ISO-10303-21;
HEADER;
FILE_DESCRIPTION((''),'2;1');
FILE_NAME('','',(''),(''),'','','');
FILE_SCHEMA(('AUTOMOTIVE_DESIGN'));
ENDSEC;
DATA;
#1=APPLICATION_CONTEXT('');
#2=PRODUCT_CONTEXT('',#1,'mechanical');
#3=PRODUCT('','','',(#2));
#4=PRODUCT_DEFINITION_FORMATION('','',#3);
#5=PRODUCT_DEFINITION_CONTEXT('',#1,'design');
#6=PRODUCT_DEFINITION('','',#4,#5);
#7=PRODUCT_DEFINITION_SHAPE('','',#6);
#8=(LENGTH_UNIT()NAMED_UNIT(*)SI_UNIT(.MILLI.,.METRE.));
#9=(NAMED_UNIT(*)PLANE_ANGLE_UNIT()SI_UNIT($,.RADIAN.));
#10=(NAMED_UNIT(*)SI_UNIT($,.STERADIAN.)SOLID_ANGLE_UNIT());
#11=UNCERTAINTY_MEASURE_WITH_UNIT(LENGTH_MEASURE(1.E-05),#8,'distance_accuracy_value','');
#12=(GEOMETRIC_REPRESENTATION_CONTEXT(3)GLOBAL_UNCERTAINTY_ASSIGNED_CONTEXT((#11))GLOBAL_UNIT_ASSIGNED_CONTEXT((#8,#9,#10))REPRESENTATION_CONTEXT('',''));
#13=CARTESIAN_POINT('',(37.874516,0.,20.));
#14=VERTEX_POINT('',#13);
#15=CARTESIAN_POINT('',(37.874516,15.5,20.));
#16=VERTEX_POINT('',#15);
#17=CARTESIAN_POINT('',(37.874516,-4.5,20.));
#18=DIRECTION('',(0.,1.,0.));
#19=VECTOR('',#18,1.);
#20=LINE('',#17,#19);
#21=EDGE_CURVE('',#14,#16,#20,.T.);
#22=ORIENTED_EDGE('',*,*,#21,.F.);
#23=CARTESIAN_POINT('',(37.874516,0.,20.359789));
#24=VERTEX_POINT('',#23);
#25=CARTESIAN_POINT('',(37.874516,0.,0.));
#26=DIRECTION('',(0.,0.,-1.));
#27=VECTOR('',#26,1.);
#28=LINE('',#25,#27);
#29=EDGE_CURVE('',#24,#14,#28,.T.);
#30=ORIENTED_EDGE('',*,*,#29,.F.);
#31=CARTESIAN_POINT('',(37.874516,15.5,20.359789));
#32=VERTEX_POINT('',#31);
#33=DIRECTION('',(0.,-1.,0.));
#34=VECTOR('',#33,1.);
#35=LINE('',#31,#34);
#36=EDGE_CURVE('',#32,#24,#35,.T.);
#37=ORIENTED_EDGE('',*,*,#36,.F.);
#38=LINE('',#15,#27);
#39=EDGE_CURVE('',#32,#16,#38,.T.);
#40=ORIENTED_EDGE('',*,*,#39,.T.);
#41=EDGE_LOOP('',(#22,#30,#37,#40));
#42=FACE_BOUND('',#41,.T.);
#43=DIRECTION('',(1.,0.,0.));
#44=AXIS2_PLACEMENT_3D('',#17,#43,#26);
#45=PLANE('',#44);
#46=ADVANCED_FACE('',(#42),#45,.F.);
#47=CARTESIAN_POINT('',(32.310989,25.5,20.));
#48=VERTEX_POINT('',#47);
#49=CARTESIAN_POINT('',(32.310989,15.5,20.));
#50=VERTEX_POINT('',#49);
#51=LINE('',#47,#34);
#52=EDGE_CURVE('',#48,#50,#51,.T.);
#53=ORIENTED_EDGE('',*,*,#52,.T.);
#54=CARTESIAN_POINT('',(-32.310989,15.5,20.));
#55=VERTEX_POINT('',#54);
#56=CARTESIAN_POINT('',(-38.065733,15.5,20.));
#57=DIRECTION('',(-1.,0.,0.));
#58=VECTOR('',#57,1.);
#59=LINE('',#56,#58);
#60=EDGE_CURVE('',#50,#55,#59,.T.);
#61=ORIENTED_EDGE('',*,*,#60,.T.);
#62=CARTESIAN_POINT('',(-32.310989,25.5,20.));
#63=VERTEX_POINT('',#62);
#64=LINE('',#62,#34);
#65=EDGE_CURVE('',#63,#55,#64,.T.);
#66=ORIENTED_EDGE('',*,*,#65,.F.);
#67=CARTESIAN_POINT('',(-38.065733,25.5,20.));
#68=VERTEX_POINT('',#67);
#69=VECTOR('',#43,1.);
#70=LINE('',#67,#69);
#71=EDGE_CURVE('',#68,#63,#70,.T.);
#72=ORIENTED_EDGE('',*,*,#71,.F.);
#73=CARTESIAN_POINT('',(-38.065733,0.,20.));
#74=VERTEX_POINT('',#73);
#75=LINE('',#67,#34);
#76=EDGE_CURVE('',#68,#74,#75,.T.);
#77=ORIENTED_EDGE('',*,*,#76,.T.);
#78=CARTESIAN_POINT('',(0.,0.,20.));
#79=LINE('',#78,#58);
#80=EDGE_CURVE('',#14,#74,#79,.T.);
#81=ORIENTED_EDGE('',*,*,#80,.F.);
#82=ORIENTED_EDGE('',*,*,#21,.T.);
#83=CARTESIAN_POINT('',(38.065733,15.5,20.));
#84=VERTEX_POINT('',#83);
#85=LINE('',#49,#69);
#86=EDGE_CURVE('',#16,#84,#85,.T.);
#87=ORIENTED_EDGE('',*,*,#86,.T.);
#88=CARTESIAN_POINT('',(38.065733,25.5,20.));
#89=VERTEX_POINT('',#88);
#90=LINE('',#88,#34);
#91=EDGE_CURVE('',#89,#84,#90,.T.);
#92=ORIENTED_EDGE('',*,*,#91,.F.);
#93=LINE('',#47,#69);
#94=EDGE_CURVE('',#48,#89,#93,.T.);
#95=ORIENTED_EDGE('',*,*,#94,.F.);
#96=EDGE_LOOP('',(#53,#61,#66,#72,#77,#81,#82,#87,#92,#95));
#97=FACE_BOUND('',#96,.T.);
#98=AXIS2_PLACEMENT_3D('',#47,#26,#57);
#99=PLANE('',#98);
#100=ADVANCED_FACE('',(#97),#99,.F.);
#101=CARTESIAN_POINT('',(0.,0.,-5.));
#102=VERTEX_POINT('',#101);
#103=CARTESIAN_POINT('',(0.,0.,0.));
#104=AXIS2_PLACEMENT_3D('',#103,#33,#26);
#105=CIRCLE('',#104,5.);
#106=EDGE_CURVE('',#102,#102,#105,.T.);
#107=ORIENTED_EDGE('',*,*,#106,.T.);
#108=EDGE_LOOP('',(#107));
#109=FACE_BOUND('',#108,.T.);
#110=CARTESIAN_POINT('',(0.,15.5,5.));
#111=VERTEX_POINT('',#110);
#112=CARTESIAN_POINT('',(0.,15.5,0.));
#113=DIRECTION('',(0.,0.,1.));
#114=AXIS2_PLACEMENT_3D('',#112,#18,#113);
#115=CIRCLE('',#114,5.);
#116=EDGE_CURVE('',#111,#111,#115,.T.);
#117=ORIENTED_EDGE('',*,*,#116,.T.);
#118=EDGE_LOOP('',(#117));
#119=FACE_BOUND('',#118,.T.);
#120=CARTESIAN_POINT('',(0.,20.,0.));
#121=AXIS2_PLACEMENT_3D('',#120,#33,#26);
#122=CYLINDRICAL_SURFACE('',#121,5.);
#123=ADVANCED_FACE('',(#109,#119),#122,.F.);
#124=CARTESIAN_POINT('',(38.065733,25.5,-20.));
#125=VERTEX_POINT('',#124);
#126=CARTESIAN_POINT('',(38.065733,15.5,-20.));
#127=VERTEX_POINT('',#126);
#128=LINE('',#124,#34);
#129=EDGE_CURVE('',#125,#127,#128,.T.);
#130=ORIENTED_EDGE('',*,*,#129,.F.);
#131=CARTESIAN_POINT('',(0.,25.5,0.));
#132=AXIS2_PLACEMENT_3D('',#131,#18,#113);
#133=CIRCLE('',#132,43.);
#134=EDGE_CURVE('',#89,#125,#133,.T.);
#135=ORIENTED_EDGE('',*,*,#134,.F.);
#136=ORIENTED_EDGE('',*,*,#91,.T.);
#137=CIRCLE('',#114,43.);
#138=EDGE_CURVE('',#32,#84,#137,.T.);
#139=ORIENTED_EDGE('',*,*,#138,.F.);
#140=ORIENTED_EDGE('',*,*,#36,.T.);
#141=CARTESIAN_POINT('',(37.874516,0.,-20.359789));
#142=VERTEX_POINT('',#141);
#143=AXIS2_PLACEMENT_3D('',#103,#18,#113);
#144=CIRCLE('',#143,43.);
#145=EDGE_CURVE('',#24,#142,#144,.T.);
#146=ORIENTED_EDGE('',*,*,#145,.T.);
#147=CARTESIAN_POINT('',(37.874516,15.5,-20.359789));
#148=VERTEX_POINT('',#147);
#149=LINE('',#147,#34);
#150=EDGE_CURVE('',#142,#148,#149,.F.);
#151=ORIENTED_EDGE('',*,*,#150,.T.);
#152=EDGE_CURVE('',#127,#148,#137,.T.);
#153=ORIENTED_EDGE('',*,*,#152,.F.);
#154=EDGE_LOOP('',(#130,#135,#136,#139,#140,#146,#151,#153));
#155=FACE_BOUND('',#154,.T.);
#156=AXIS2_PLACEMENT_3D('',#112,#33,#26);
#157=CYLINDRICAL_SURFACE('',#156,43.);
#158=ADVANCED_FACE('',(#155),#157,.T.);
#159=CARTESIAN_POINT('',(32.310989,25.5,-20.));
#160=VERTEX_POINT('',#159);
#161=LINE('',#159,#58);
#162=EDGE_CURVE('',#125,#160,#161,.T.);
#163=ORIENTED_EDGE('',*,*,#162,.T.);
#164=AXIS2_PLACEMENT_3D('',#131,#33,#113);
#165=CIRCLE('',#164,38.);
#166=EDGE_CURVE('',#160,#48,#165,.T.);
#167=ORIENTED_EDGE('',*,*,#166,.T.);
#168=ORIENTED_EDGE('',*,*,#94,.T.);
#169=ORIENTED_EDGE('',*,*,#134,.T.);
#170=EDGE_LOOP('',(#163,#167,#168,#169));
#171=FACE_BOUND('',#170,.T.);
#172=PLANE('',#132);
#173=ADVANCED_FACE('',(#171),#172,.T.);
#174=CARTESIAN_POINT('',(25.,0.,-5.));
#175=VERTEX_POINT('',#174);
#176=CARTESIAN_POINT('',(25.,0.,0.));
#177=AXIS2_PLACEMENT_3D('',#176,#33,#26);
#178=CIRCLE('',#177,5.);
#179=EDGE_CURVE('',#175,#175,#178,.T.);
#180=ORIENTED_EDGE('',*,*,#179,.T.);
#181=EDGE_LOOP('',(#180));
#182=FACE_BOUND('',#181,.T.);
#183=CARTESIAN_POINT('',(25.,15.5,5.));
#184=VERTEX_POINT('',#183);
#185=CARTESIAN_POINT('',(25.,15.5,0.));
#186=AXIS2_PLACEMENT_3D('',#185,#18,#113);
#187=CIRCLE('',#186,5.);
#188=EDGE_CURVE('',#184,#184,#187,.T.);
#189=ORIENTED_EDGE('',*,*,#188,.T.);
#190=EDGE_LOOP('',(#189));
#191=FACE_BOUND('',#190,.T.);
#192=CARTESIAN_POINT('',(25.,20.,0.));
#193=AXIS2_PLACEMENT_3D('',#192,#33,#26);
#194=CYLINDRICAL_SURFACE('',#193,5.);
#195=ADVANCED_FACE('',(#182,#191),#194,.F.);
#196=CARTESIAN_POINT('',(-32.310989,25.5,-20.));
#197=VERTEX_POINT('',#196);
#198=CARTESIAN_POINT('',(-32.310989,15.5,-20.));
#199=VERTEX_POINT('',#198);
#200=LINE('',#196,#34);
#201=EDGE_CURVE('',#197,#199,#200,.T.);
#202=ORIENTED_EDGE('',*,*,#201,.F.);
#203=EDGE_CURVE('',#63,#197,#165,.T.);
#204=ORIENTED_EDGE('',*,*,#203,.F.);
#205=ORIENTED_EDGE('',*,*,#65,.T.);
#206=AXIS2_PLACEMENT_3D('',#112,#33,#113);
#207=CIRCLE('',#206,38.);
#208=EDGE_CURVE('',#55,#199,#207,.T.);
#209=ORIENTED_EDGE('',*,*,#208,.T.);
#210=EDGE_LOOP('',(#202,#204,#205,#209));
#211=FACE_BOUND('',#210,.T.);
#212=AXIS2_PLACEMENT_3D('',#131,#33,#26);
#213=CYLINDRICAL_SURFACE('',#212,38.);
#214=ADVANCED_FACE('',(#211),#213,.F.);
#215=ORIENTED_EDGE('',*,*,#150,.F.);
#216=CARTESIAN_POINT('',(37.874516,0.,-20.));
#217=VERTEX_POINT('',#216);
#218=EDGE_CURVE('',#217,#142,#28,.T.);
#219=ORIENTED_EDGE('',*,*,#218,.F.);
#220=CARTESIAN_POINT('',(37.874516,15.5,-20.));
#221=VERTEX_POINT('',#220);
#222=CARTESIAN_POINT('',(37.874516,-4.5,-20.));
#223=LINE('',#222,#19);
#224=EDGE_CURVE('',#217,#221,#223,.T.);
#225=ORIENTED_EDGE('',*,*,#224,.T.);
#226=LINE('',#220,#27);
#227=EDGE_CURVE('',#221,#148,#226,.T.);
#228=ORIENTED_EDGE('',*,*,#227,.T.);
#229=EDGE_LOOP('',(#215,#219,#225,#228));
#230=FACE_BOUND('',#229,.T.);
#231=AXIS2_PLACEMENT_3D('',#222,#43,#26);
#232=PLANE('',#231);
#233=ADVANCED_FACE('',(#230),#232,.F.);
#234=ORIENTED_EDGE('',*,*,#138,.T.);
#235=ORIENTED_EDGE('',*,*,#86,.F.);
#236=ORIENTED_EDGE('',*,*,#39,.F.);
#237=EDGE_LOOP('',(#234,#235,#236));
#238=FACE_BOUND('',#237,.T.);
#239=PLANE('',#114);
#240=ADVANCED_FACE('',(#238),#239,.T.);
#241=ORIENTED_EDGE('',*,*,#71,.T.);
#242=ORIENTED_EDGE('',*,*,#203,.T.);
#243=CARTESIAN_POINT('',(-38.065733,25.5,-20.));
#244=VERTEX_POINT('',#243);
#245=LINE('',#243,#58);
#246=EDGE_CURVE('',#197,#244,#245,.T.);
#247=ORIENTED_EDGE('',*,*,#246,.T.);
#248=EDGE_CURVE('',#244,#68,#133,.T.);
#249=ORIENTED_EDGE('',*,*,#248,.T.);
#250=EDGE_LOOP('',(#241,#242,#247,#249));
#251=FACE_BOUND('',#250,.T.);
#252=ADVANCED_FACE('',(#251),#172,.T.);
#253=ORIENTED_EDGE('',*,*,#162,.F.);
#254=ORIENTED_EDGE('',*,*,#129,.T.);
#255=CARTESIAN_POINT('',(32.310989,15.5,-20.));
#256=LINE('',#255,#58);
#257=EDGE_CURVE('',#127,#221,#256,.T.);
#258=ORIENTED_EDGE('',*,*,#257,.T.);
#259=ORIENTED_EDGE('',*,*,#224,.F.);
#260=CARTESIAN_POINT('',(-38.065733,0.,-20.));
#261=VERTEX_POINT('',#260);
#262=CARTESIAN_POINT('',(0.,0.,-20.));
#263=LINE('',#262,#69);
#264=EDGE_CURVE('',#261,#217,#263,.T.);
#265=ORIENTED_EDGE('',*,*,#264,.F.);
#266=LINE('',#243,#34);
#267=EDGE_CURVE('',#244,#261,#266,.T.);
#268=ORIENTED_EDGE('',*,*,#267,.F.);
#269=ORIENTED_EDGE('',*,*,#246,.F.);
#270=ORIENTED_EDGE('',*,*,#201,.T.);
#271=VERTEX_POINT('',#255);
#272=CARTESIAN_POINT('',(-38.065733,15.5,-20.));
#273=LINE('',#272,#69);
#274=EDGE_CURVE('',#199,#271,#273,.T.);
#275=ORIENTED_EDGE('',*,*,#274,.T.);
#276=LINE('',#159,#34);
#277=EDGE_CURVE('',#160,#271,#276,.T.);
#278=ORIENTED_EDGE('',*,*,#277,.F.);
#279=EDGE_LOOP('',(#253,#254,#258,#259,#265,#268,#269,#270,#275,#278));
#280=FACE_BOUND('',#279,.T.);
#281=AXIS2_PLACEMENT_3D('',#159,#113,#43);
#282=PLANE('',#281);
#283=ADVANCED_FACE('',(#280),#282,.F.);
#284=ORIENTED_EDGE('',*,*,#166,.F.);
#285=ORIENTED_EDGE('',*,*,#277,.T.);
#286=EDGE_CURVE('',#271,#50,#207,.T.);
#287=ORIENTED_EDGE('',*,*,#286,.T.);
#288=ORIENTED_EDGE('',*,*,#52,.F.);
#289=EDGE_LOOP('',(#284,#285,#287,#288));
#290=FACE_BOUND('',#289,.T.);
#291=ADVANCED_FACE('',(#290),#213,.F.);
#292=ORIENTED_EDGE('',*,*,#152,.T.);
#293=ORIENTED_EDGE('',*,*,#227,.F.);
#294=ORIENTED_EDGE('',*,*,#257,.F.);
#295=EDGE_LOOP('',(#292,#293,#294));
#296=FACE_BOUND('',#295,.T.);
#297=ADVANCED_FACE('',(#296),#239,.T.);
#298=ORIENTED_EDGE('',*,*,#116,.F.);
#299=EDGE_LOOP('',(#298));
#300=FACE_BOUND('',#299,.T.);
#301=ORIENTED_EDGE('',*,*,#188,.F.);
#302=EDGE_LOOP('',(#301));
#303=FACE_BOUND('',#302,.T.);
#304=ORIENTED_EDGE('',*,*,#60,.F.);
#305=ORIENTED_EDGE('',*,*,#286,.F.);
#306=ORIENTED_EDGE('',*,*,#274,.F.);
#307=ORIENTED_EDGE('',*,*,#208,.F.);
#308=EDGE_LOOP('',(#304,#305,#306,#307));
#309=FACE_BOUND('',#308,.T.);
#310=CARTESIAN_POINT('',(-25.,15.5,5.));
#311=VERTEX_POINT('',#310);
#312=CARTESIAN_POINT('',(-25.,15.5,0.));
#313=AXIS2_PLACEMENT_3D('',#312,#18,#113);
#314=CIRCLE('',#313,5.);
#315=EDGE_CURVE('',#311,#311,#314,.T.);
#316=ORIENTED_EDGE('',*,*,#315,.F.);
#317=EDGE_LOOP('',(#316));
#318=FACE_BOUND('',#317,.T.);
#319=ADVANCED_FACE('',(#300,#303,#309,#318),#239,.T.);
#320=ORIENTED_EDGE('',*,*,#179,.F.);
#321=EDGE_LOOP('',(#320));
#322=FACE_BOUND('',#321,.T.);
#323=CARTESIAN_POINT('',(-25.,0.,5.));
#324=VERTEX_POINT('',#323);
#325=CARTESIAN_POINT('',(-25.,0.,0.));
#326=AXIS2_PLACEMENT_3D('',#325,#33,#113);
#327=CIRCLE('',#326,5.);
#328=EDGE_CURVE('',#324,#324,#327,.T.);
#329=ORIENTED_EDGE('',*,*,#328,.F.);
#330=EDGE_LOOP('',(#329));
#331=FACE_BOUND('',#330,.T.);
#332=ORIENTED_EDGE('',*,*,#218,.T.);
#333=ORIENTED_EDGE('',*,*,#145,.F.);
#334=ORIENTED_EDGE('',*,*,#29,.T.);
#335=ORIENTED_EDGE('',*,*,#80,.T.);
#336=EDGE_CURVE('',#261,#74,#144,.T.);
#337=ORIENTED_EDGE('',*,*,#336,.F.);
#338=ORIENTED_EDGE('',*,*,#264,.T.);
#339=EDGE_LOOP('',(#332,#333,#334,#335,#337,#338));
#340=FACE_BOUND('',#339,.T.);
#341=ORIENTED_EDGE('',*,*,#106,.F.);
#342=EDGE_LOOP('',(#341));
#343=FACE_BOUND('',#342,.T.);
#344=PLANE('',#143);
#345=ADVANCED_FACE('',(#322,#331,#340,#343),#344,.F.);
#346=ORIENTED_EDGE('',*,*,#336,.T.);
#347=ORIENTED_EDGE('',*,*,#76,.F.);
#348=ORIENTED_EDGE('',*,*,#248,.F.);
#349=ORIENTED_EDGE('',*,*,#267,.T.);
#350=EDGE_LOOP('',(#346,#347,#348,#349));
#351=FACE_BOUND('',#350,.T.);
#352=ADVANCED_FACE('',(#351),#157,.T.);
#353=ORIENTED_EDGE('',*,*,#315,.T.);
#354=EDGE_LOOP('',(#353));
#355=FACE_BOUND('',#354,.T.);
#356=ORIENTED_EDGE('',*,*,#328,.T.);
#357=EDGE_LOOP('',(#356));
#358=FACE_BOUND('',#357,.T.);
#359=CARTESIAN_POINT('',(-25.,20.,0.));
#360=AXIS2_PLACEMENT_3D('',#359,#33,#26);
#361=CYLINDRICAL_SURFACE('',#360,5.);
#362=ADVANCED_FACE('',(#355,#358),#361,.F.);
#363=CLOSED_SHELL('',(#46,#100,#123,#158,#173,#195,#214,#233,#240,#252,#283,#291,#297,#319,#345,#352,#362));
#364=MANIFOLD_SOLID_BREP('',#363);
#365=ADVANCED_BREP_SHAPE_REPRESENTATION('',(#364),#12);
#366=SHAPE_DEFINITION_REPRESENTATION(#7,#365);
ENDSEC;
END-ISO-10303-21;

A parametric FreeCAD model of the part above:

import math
import FreeCAD as App
import Part
import Sketcher
Q = App.Units.Quantity


def add_polygon(sketch, points):
    """Adds a closed chain of lines whose ends are joined by coincident constraints."""
    first, n = sketch.GeometryCount, len(points)
    for a, b in zip(points, points[1:] + points[:1]):
        sketch.addGeometry(Part.LineSegment(App.Vector(*a, 0), App.Vector(*b, 0)), False)
    for i in range(n):
        sketch.addConstraint(Sketcher.Constraint("Coincident", first + i, 2, first + (i + 1) % n, 1))

doc = App.newDocument("Part")
params = doc.addObject("Spreadsheet::Sheet", "Params")
for row, (alias, value) in enumerate([
    ("sketch1_diameter", "86 mm"),
    ("pad1_length", "15.5 mm"),
    ("sketch2_radius", "43 mm"),
    ("sketch2_radius2", "38 mm"),
    ("pad2_length", "10 mm"),
    ("pocket1_length", "20 mm"),
    ("sketch4_diameter", "10 mm"),
    ("pocket2_length", "20 mm"),
    ("sketch5_diameter", "10 mm"),
    ("pocket3_length", "20 mm"),
], start=1):
    params.set(f"A{row}", alias)
    params.set(f"B{row}", "=" + value)
    params.setAlias(f"B{row}", alias)

body = doc.addObject("PartDesign::Body", "Body")

sketch1 = body.newObject("Sketcher::SketchObject", "Sketch")
sketch1.AttachmentSupport = (doc.getObject("XZ_Plane"), [""])
sketch1.MapMode = "FlatFace"
sketch1.addGeometry(Part.Circle(App.Vector(0, 0, 0), App.Vector(0, 0, 1), 43), False)
sketch1.addConstraint(Sketcher.Constraint("Coincident", 0, 3, -1, 1))
sketch1.addConstraint(Sketcher.Constraint("Diameter", 0, Q("86 mm")))
sketch1.setExpression("Constraints[1]", "Params.sketch1_diameter")
pad1 = body.newObject("PartDesign::Pad", "Pad")
pad1.Profile = sketch1
pad1.setExpression("Length", "Params.pad1_length")
pad1.Reversed = True

sketch2 = body.newObject("Sketcher::SketchObject", "Sketch001")
sketch2.AttachmentSupport = (doc.getObject("XZ_Plane"), [""])
sketch2.MapMode = "FlatFace"
sketch2.AttachmentOffset = App.Placement(App.Vector(0, 0, -15.5), App.Rotation())
sketch2.addGeometry(Part.LineSegment(App.Vector(-32.310989, -20, 0), App.Vector(-38.065733, -20, 0)), False)
sketch2.addGeometry(Part.ArcOfCircle(Part.Circle(App.Vector(0, 0, 0), App.Vector(0, 0, 1), 43), math.radians(152.282252), math.radians(207.717748)), False)
sketch2.addGeometry(Part.LineSegment(App.Vector(-38.065733, 20, 0), App.Vector(-32.310989, 20, 0)), False)
sketch2.addGeometry(Part.ArcOfCircle(Part.Circle(App.Vector(0, 0, 0), App.Vector(0, 0, 1), 38), math.radians(148.243136), math.radians(211.756864)), False)
sketch2.addGeometry(Part.LineSegment(App.Vector(38.065733, -20, 0), App.Vector(32.310989, -20, 0)), False)
sketch2.addGeometry(Part.ArcOfCircle(Part.Circle(App.Vector(0, 0, 0), App.Vector(0, 0, 1), 38), math.radians(-31.756864), math.radians(31.756864)), False)
sketch2.addGeometry(Part.LineSegment(App.Vector(32.310989, 20, 0), App.Vector(38.065733, 20, 0)), False)
sketch2.addGeometry(Part.ArcOfCircle(Part.Circle(App.Vector(0, 0, 0), App.Vector(0, 0, 1), 43), math.radians(-27.717748), math.radians(27.717748)), False)
sketch2.addConstraint(Sketcher.Constraint("Coincident", 0, 2, 1, 2))
sketch2.addConstraint(Sketcher.Constraint("Coincident", 1, 1, 2, 1))
sketch2.addConstraint(Sketcher.Constraint("Coincident", 2, 2, 3, 1))
sketch2.addConstraint(Sketcher.Constraint("Coincident", 3, 2, 0, 1))
sketch2.addConstraint(Sketcher.Constraint("Coincident", 4, 2, 5, 1))
sketch2.addConstraint(Sketcher.Constraint("Coincident", 5, 2, 6, 1))
sketch2.addConstraint(Sketcher.Constraint("Coincident", 6, 2, 7, 2))
sketch2.addConstraint(Sketcher.Constraint("Coincident", 7, 1, 4, 1))
sketch2.addConstraint(Sketcher.Constraint("Horizontal", 0))
sketch2.addConstraint(Sketcher.Constraint("Horizontal", 2))
sketch2.addConstraint(Sketcher.Constraint("Horizontal", 4))
sketch2.addConstraint(Sketcher.Constraint("Horizontal", 6))
sketch2.addConstraint(Sketcher.Constraint("Coincident", 1, 3, -1, 1))
sketch2.addConstraint(Sketcher.Constraint("Coincident", 3, 3, -1, 1))
sketch2.addConstraint(Sketcher.Constraint("Coincident", 5, 3, -1, 1))
sketch2.addConstraint(Sketcher.Constraint("Coincident", 7, 3, -1, 1))
sketch2.addConstraint(Sketcher.Constraint("Equal", 3, 5))
sketch2.addConstraint(Sketcher.Constraint("Equal", 1, 7))
sketch2.addConstraint(Sketcher.Constraint("Horizontal", 3, 2, 4, 2))
sketch2.addConstraint(Sketcher.Constraint("Horizontal", 2, 2, 5, 2))
sketch2.addConstraint(Sketcher.Constraint("Vertical", 0, 2, 1, 1))
sketch2.addConstraint(Sketcher.Constraint("Radius", 1, Q("43 mm")))
sketch2.addConstraint(Sketcher.Constraint("Radius", 3, Q("38 mm")))
sketch2.addConstraint(Sketcher.Constraint("DistanceY", 0, 2, -1, 1, Q("20 mm")))
sketch2.setExpression("Constraints[21]", "Params.sketch2_radius")
sketch2.setExpression("Constraints[22]", "Params.sketch2_radius2")
pad2 = body.newObject("PartDesign::Pad", "Pad001")
pad2.Profile = sketch2
pad2.setExpression("Length", "Params.pad2_length")
pad2.Reversed = True

sketch3 = body.newObject("Sketcher::SketchObject", "Sketch002")
sketch3.AttachmentSupport = (doc.getObject("XZ_Plane"), [""])
sketch3.MapMode = "FlatFace"
sketch3.AttachmentOffset = App.Placement(App.Vector(0, 0, -15.5), App.Rotation())
add_polygon(sketch3, [(-38.065733, 20), (-38.065733, 44.034829), (37.874516, 44.034829), (37.874516, 20)])
add_polygon(sketch3, [(-38.065733, -44.034829), (-38.065733, -20), (37.874516, -20), (37.874516, -44.034829)])
sketch3.addConstraint(Sketcher.Constraint("Vertical", 0))
sketch3.addConstraint(Sketcher.Constraint("Horizontal", 1))
sketch3.addConstraint(Sketcher.Constraint("Vertical", 2))
sketch3.addConstraint(Sketcher.Constraint("Horizontal", 3))
sketch3.addConstraint(Sketcher.Constraint("Vertical", 4))
sketch3.addConstraint(Sketcher.Constraint("Horizontal", 5))
sketch3.addConstraint(Sketcher.Constraint("Vertical", 6))
sketch3.addConstraint(Sketcher.Constraint("Horizontal", 7))
sketch3.addConstraint(Sketcher.Constraint("Symmetric", 3, 2, 4, 2, -1))
sketch3.addConstraint(Sketcher.Constraint("Symmetric", 1, 2, 6, 2, -1))
sketch3.addConstraint(Sketcher.Constraint("DistanceY", -1, 1, 2, 2, Q("20 mm")))
sketch3.addConstraint(Sketcher.Constraint("DistanceX", 1, 1, 1, 2, Q("75.940249 mm")))
sketch3.addConstraint(Sketcher.Constraint("DistanceY", 0, 1, 0, 2, Q("24.034829 mm")))
sketch3.addConstraint(Sketcher.Constraint("DistanceX", 0, 2, -1, 1, Q("38.065733 mm")))
pocket1 = body.newObject("PartDesign::Pocket", "Pocket")
pocket1.Profile = sketch3
pocket1.setExpression("Length", "Params.pocket1_length")
pocket1.Reversed = True

sketch4 = body.newObject("Sketcher::SketchObject", "Sketch003")
sketch4.AttachmentSupport = (doc.getObject("XZ_Plane"), [""])
sketch4.MapMode = "FlatFace"
sketch4.addGeometry(Part.Circle(App.Vector(0, 0, 0), App.Vector(0, 0, 1), 5), False)
sketch4.addConstraint(Sketcher.Constraint("Coincident", 0, 3, -1, 1))
sketch4.addConstraint(Sketcher.Constraint("Diameter", 0, Q("10 mm")))
sketch4.setExpression("Constraints[1]", "Params.sketch4_diameter")
pocket2 = body.newObject("PartDesign::Pocket", "Pocket001")
pocket2.Profile = sketch4
pocket2.setExpression("Length", "Params.pocket2_length")

sketch5 = body.newObject("Sketcher::SketchObject", "Sketch004")
sketch5.AttachmentSupport = (doc.getObject("XZ_Plane"), [""])
sketch5.MapMode = "FlatFace"
sketch5.addGeometry(Part.Circle(App.Vector(25, 0, 0), App.Vector(0, 0, 1), 5), False)
sketch5.addGeometry(Part.Circle(App.Vector(-25, 0, 0), App.Vector(0, 0, 1), 5), False)
sketch5.addConstraint(Sketcher.Constraint("Equal", 0, 1))
sketch5.addConstraint(Sketcher.Constraint("Symmetric", 0, 3, 1, 3, -1, 1))
sketch5.addConstraint(Sketcher.Constraint("PointOnObject", 0, 3, -1))
sketch5.addConstraint(Sketcher.Constraint("Diameter", 0, Q("10 mm")))
sketch5.addConstraint(Sketcher.Constraint("DistanceX", -1, 1, 0, 3, Q("25 mm")))
sketch5.setExpression("Constraints[3]", "Params.sketch5_diameter")
pocket3 = body.newObject("PartDesign::Pocket", "Pocket002")
pocket3.Profile = sketch5
pocket3.setExpression("Length", "Params.pocket3_length")

doc.recompute()
